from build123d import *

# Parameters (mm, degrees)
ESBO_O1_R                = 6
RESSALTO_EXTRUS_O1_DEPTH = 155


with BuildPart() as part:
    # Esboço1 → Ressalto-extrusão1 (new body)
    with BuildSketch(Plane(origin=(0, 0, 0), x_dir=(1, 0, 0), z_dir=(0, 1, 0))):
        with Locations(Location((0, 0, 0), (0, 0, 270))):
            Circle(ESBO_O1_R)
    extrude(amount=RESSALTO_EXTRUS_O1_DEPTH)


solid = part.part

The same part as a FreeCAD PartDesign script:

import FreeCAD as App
import Part
import Sketcher

V = App.Vector

doc = App.newDocument("Part")
params = doc.addObject("Spreadsheet::Sheet", "Params")
for row, (alias, value) in enumerate([
    ("sketch1_diameter", "12 mm"),
    ("pad1_length", "155 mm"),
], start=1):
    params.set(f"A{row}", alias)
    params.set(f"B{row}", "=" + value)
    params.setAlias(f"B{row}", alias)

body = doc.addObject("PartDesign::Body", "Body")

# Sketch on XZ plane
sketch1 = body.newObject("Sketcher::SketchObject", "Sketch")
sketch1.AttachmentSupport = (doc.getObject("XZ_Plane"), [""])
sketch1.MapMode = "FlatFace"
sketch1.addGeometry(Part.Circle(V(0, 0, 0), V(0, 0, 1), 6), False)
sketch1.addConstraint(Sketcher.Constraint("Coincident", 0, 3, -1, 1))
sketch1.addConstraint(Sketcher.Constraint("Diameter", 0, 12.0))
sketch1.setExpression("Constraints[1]", "Params.sketch1_diameter")
pad1 = body.newObject("PartDesign::Pad", "Pad")
pad1.Profile = sketch1
pad1.setExpression("Length", "Params.pad1_length")
pad1.Reversed = True

doc.recompute()
